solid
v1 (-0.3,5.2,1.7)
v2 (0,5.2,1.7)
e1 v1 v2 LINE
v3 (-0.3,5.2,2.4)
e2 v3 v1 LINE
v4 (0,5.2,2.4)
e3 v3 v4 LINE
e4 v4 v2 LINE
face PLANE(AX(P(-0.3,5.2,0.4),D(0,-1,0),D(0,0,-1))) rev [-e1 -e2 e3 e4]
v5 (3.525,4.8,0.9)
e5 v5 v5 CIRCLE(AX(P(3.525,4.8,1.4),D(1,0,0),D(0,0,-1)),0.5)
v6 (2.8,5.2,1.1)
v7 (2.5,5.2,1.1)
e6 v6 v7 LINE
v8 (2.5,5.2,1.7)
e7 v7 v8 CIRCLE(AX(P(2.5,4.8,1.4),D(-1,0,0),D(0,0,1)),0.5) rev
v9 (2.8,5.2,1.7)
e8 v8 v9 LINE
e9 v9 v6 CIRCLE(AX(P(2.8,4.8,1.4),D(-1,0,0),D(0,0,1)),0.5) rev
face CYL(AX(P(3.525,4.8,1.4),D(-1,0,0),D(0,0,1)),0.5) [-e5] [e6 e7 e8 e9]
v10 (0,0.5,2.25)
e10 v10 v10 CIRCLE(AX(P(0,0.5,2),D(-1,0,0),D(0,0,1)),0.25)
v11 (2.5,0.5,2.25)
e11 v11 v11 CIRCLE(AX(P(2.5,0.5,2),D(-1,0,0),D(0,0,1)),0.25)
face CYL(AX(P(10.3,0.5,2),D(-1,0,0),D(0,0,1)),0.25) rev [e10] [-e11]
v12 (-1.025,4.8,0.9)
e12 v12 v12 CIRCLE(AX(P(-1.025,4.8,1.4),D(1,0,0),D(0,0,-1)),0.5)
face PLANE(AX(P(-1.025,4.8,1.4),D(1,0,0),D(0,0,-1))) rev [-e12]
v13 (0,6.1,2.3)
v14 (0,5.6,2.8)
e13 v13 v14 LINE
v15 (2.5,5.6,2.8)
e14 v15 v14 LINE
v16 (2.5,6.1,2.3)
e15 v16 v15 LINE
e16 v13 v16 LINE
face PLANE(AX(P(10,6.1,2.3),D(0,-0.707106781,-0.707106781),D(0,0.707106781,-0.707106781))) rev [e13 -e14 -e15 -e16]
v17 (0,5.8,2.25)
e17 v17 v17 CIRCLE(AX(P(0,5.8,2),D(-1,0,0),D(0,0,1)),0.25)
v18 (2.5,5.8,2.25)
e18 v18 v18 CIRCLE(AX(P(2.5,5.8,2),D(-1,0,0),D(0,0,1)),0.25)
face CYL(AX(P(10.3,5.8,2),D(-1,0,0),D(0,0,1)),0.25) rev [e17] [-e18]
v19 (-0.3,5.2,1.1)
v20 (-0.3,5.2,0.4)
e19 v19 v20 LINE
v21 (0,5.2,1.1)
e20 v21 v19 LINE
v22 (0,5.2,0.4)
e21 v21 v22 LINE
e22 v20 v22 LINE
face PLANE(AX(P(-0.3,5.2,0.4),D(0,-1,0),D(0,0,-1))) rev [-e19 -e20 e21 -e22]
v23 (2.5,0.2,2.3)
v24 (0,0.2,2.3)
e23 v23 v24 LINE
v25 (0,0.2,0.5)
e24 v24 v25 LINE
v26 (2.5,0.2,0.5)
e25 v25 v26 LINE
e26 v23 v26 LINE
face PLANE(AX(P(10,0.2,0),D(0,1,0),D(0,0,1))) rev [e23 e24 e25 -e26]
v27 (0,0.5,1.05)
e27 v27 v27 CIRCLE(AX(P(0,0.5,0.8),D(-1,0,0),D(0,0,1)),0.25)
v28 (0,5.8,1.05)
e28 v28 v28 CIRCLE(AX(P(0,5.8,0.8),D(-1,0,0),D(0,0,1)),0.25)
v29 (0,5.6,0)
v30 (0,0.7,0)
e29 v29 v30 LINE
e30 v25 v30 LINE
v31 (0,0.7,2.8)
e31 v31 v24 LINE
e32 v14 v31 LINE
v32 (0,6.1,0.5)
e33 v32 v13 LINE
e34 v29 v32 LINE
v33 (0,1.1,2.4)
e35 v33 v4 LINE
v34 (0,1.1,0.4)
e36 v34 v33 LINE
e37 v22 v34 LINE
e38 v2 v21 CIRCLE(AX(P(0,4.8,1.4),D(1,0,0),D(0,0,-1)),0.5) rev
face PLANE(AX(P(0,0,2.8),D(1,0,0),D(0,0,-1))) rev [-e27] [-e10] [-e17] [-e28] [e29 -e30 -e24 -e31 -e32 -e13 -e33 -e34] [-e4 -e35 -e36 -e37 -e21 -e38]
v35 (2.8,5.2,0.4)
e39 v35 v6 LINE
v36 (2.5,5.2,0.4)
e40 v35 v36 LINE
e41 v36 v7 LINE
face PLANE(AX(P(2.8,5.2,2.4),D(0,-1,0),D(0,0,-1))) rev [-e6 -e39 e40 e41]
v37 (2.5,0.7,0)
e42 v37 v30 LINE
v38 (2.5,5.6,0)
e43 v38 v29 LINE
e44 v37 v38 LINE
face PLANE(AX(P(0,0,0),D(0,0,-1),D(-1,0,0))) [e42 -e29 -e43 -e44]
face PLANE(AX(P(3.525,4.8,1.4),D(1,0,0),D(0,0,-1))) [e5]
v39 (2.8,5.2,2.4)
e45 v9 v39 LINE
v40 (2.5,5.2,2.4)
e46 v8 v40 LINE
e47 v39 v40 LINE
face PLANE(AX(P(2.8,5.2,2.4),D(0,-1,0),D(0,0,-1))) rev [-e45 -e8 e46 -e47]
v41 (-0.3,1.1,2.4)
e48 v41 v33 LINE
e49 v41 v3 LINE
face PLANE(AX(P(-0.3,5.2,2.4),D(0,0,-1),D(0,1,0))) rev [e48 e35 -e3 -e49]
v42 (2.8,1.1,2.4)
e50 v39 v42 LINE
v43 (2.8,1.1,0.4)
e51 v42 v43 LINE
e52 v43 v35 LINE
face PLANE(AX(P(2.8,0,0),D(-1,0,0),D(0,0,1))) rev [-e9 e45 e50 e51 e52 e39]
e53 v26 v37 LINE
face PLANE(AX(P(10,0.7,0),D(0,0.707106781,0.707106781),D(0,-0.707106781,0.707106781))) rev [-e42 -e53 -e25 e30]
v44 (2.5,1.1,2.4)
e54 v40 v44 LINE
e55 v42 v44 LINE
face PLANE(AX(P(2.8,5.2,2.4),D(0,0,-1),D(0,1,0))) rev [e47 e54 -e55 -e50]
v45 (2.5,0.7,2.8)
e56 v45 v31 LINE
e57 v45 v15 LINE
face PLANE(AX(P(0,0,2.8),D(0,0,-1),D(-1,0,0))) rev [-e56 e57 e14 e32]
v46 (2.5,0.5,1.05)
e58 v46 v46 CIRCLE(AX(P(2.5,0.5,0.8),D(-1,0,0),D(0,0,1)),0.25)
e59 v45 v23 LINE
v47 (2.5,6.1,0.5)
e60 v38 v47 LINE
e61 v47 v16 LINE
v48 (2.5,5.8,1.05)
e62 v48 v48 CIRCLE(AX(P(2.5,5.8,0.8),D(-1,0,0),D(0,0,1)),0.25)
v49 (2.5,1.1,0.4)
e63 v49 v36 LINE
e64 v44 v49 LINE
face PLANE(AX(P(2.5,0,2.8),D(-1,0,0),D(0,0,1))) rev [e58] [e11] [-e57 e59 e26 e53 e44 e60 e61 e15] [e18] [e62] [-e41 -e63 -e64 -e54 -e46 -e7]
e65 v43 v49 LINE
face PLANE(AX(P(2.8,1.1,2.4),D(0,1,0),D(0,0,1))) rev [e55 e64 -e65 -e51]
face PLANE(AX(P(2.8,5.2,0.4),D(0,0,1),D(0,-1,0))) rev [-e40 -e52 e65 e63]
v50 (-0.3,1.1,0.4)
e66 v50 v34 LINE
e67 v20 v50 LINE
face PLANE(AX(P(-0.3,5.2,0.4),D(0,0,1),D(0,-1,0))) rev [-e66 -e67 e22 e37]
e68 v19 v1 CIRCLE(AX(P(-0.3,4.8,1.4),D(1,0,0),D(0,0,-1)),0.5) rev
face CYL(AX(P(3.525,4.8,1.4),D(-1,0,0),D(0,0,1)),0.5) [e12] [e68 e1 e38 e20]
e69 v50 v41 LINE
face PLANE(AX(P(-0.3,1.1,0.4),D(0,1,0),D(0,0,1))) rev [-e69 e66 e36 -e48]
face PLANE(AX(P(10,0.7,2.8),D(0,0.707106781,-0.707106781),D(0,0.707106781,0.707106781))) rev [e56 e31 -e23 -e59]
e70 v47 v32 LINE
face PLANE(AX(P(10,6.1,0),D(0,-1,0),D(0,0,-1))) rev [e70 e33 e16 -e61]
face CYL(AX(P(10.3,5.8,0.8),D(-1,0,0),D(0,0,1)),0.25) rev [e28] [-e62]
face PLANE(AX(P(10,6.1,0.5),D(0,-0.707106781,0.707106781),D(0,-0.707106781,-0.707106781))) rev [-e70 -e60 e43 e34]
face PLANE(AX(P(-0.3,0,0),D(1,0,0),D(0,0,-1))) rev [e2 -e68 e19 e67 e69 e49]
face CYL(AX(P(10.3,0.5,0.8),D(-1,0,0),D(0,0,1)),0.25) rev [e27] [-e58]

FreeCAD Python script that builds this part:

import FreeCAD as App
import Part
import Sketcher

V = App.Vector
Q = App.Units.Quantity


def edges_at(feature, points):
    """Names of the edges that pass closest to the given points."""
    edges = feature.Shape.Edges
    near = lambda p: min(range(len(edges)), key=lambda i: edges[i].distToShape(Part.Vertex(*p))[0])
    return sorted({f"Edge{near(p) + 1}" for p in points})

doc = App.newDocument("Part")
body = doc.addObject("PartDesign::Body", "Body")

# Sketch on XY plane
sketch1 = body.newObject("Sketcher::SketchObject", "Sketch")
sketch1.AttachmentSupport = (doc.getObject("XY_Plane"), [""])
sketch1.MapMode = "FlatFace"
sketch1.addGeometry([
    Part.LineSegment(V(0, 6.3, 0), V(0, 0, 0)),
    Part.LineSegment(V(0, 0, 0), V(2.5, 0, 0)),
    Part.LineSegment(V(2.5, 0, 0), V(2.5, 6.3, 0)),
    Part.LineSegment(V(2.5, 6.3, 0), V(0, 6.3, 0)),
], False)
sketch1.addConstraint([
    Sketcher.Constraint("Coincident", 0, 2, 1, 1),
    Sketcher.Constraint("Coincident", 1, 2, 2, 1),
    Sketcher.Constraint("Coincident", 2, 2, 3, 1),
    Sketcher.Constraint("Coincident", 3, 2, 0, 1),
    Sketcher.Constraint("Vertical", 0),
    Sketcher.Constraint("Horizontal", 1),
    Sketcher.Constraint("Vertical", 2),
    Sketcher.Constraint("Horizontal", 3),
    Sketcher.Constraint("Coincident", 0, 2, -1, 1),
    Sketcher.Constraint("DistanceX", 1, 1, 1, 2, Q("2.5 mm")),
    Sketcher.Constraint("DistanceY", 0, 2, 0, 1, Q("6.3 mm")),
])
pad1 = body.newObject("PartDesign::Pad", "Pad")
pad1.Profile = sketch1
pad1.Length = 2.8

# Sketch on YZ plane
sketch2 = body.newObject("Sketcher::SketchObject", "Sketch001")
sketch2.AttachmentSupport = (doc.getObject("YZ_Plane"), [""])
sketch2.MapMode = "FlatFace"
sketch2.AttachmentOffset = App.Placement(V(0, 0, 2.5), App.Rotation())
sketch2.addGeometry([
    Part.LineSegment(V(5.2, 2.4, 0), V(1.1, 2.4, 0)),
    Part.LineSegment(V(1.1, 2.4, 0), V(1.1, 0.4, 0)),
    Part.LineSegment(V(1.1, 0.4, 0), V(5.2, 0.4, 0)),
    Part.LineSegment(V(5.2, 0.4, 0), V(5.2, 2.4, 0)),
], False)
sketch2.addConstraint([
    Sketcher.Constraint("Coincident", 0, 2, 1, 1),
    Sketcher.Constraint("Coincident", 1, 2, 2, 1),
    Sketcher.Constraint("Coincident", 2, 2, 3, 1),
    Sketcher.Constraint("Coincident", 3, 2, 0, 1),
    Sketcher.Constraint("Horizontal", 0),
    Sketcher.Constraint("Vertical", 1),
    Sketcher.Constraint("Horizontal", 2),
    Sketcher.Constraint("Vertical", 3),
    Sketcher.Constraint("DistanceY", 1, 2, 1, 1, Q("2 mm")),
    Sketcher.Constraint("DistanceX", 0, 2, 0, 1, Q("4.1 mm")),
    Sketcher.Constraint("DistanceX", -1, 1, 0, 2, Q("1.1 mm")),
    Sketcher.Constraint("DistanceY", -1, 1, 0, 2, Q("2.4 mm")),
])
pad2 = body.newObject("PartDesign::Pad", "Pad001")
pad2.Profile = sketch2
pad2.Length = 0.3

# Sketch on YZ plane
sketch3 = body.newObject("Sketcher::SketchObject", "Sketch002")
sketch3.AttachmentSupport = (doc.getObject("YZ_Plane"), [""])
sketch3.MapMode = "FlatFace"
sketch3.addGeometry([
    Part.LineSegment(V(5.2, 0.4, 0), V(1.1, 0.4, 0)),
    Part.LineSegment(V(1.1, 0.4, 0), V(1.1, 2.4, 0)),
    Part.LineSegment(V(1.1, 2.4, 0), V(5.2, 2.4, 0)),
    Part.LineSegment(V(5.2, 2.4, 0), V(5.2, 0.4, 0)),
], False)
sketch3.addConstraint([
    Sketcher.Constraint("Coincident", 0, 2, 1, 1),
    Sketcher.Constraint("Coincident", 1, 2, 2, 1),
    Sketcher.Constraint("Coincident", 2, 2, 3, 1),
    Sketcher.Constraint("Coincident", 3, 2, 0, 1),
    Sketcher.Constraint("Horizontal", 0),
    Sketcher.Constraint("Vertical", 1),
    Sketcher.Constraint("Horizontal", 2),
    Sketcher.Constraint("Vertical", 3),
    Sketcher.Constraint("DistanceY", 1, 1, 1, 2, Q("2 mm")),
    Sketcher.Constraint("DistanceX", 0, 2, 0, 1, Q("4.1 mm")),
    Sketcher.Constraint("DistanceX", -1, 1, 0, 2, Q("1.1 mm")),
    Sketcher.Constraint("DistanceY", -1, 1, 0, 2, Q("0.4 mm")),
])
pad3 = body.newObject("PartDesign::Pad", "Pad002")
pad3.Profile = sketch3
pad3.Length = 0.3
pad3.Reversed = True

# Sketch on YZ plane
sketch4 = body.newObject("Sketcher::SketchObject", "Sketch003")
sketch4.AttachmentSupport = (doc.getObject("YZ_Plane"), [""])
sketch4.MapMode = "FlatFace"
sketch4.addGeometry([
    Part.Circle(V(0.5, 0.8, 0), V(0, 0, 1), 0.25),
    Part.Circle(V(0.5, 2, 0), V(0, 0, 1), 0.25),
    Part.Circle(V(5.8, 0.8, 0), V(0, 0, 1), 0.25),
    Part.Circle(V(5.8, 2, 0), V(0, 0, 1), 0.25),
], False)
sketch4.addConstraint([
    Sketcher.Constraint("Equal", 0, 1),
    Sketcher.Constraint("Equal", 1, 2),
    Sketcher.Constraint("Equal", 2, 3),
    Sketcher.Constraint("Horizontal", 0, 3, 2, 3),
    Sketcher.Constraint("Horizontal", 1, 3, 3, 3),
    Sketcher.Constraint("Vertical", 0, 3, 1, 3),
    Sketcher.Constraint("Vertical", 2, 3, 3, 3),
    Sketcher.Constraint("Diameter", 0, Q("0.5 mm")),
    Sketcher.Constraint("DistanceY", -1, 1, 1, 3, Q("2 mm")),
    Sketcher.Constraint("DistanceX", -1, 1, 0, 3, Q("0.5 mm")),
    Sketcher.Constraint("DistanceY", -1, 1, 0, 3, Q("0.8 mm")),
    Sketcher.Constraint("DistanceX", -1, 1, 2, 3, Q("5.8 mm")),
])
pocket1 = body.newObject("PartDesign::Pocket", "Pocket")
pocket1.Profile = sketch4
pocket1.Length = 10.3
pocket1.Reversed = True
doc.recompute()

fillet = body.newObject("PartDesign::Fillet", "Fillet")
fillet.Base = (pocket1, edges_at(pocket1, [
    (1.25, 6.3, 2.8),
    (1.25, 6.3, 0),
    (1.25, 0, 0),
    (1.25, 0, 2.8),
]))
fillet.Radius = 0.2

# Sketch on YZ plane
sketch5 = body.newObject("Sketcher::SketchObject", "Sketch004")
sketch5.AttachmentSupport = (doc.getObject("YZ_Plane"), [""])
sketch5.MapMode = "FlatFace"
sketch5.AttachmentOffset = App.Placement(V(0, 0, 1.25), App.Rotation())
sketch5.addGeometry(Part.Circle(V(4.8, 1.4, 0), V(0, 0, 1), 0.5), False)
sketch5.addConstraint([
    Sketcher.Constraint("Diameter", 0, Q("1 mm")),
    Sketcher.Constraint("DistanceX", -1, 1, 0, 3, Q("4.8 mm")),
    Sketcher.Constraint("DistanceY", -1, 1, 0, 3, Q("1.4 mm")),
])
pad4 = body.newObject("PartDesign::Pad", "Pad003")
pad4.Profile = sketch5
pad4.Length = 4.55
pad4.Midplane = True

# Sketch on YZ plane
sketch6 = body.newObject("Sketcher::SketchObject", "Sketch005")
sketch6.AttachmentSupport = (doc.getObject("YZ_Plane"), [""])
sketch6.MapMode = "FlatFace"
sketch6.addGeometry([
    Part.LineSegment(V(6.1, 0, 0), V(6.1, 2.8, 0)),  # 0
    Part.LineSegment(V(6.1, 2.8, 0), V(6.3, 2.8, 0)),  # 1
    Part.LineSegment(V(6.3, 2.8, 0), V(6.3, 0, 0)),  # 2
    Part.LineSegment(V(6.3, 0, 0), V(6.1, 0, 0)),  # 3
    Part.LineSegment(V(0.2, 2.8, 0), V(0.2, 0, 0)),  # 4
    Part.LineSegment(V(0.2, 0, 0), V(0, 0, 0)),  # 5
    Part.LineSegment(V(0, 0, 0), V(0, 2.8, 0)),  # 6
    Part.LineSegment(V(0, 2.8, 0), V(0.2, 2.8, 0)),  # 7
], False)
sketch6.addConstraint([
    Sketcher.Constraint("Coincident", 0, 2, 1, 1),
    Sketcher.Constraint("Coincident", 1, 2, 2, 1),
    Sketcher.Constraint("Coincident", 2, 2, 3, 1),
    Sketcher.Constraint("Coincident", 3, 2, 0, 1),
    Sketcher.Constraint("Coincident", 4, 2, 5, 1),
    Sketcher.Constraint("Coincident", 5, 2, 6, 1),
    Sketcher.Constraint("Coincident", 6, 2, 7, 1),
    Sketcher.Constraint("Coincident", 7, 2, 4, 1),
    Sketcher.Constraint("Vertical", 0),
    Sketcher.Constraint("Horizontal", 1),
    Sketcher.Constraint("Vertical", 2),
    Sketcher.Constraint("Horizontal", 3),
    Sketcher.Constraint("Vertical", 4),
    Sketcher.Constraint("Horizontal", 5),
    Sketcher.Constraint("Vertical", 6),
    Sketcher.Constraint("Horizontal", 7),
    Sketcher.Constraint("Coincident", 5, 2, -1, 1),
    Sketcher.Constraint("PointOnObject", 2, 2, -1),
    Sketcher.Constraint("Horizontal", 1, 2, 6, 2),
    Sketcher.Constraint("Equal", 3, 5),
    Sketcher.Constraint("DistanceX", 1, 1, 1, 2, Q("0.2 mm")),
    Sketcher.Constraint("DistanceY", 0, 1, 0, 2, Q("2.8 mm")),
    Sketcher.Constraint("DistanceX", -1, 1, 0, 2, Q("6.1 mm")),
])
pocket2 = body.newObject("PartDesign::Pocket", "Pocket001")
pocket2.Profile = sketch6
pocket2.Length = 10
pocket2.Reversed = True

# Sketch on YZ plane
sketch7 = body.newObject("Sketcher::SketchObject", "Sketch006")
sketch7.AttachmentSupport = (doc.getObject("YZ_Plane"), [""])
sketch7.MapMode = "FlatFace"
sketch7.addGeometry([
    Part.LineSegment(V(5.6, 2.8, 0), V(6.1, 2.8, 0)),  # 0
    Part.LineSegment(V(6.1, 2.8, 0), V(6.1, 2.3, 0)),  # 1
    Part.LineSegment(V(6.1, 2.3, 0), V(5.6, 2.8, 0)),  # 2
    Part.LineSegment(V(6.1, 0.5, 0), V(6.1, 0, 0)),  # 3
    Part.LineSegment(V(6.1, 0, 0), V(5.6, 0, 0)),  # 4
    Part.LineSegment(V(5.6, 0, 0), V(6.1, 0.5, 0)),  # 5
    Part.LineSegment(V(0.7, 0, 0), V(0.2, 0, 0)),  # 6
    Part.LineSegment(V(0.2, 0, 0), V(0.2, 0.5, 0)),  # 7
    Part.LineSegment(V(0.2, 0.5, 0), V(0.7, 0, 0)),  # 8
    Part.LineSegment(V(0.2, 2.8, 0), V(0.7, 2.8, 0)),  # 9
    Part.LineSegment(V(0.7, 2.8, 0), V(0.2, 2.3, 0)),  # 10
    Part.LineSegment(V(0.2, 2.3, 0), V(0.2, 2.8, 0)),  # 11
], False)
sketch7.addConstraint([
    Sketcher.Constraint("Coincident", 0, 2, 1, 1),
    Sketcher.Constraint("Coincident", 1, 2, 2, 1),
    Sketcher.Constraint("Coincident", 2, 2, 0, 1),
    Sketcher.Constraint("Coincident", 3, 2, 4, 1),
    Sketcher.Constraint("Coincident", 4, 2, 5, 1),
    Sketcher.Constraint("Coincident", 5, 2, 3, 1),
    Sketcher.Constraint("Coincident", 6, 2, 7, 1),
    Sketcher.Constraint("Coincident", 7, 2, 8, 1),
    Sketcher.Constraint("Coincident", 8, 2, 6, 1),
    Sketcher.Constraint("Coincident", 9, 2, 10, 1),
    Sketcher.Constraint("Coincident", 10, 2, 11, 1),
    Sketcher.Constraint("Coincident", 11, 2, 9, 1),
    Sketcher.Constraint("Horizontal", 0),
    Sketcher.Constraint("Vertical", 1),
    Sketcher.Constraint("Vertical", 3),
    Sketcher.Constraint("Horizontal", 4),
    Sketcher.Constraint("Horizontal", 6),
    Sketcher.Constraint("Vertical", 7),
    Sketcher.Constraint("Horizontal", 9),
    Sketcher.Constraint("Vertical", 11),
    Sketcher.Constraint("PointOnObject", 3, 2, -1),
    Sketcher.Constraint("PointOnObject", 6, 2, -1),
    Sketcher.Constraint("Perpendicular", 2, 5),
    Sketcher.Constraint("Perpendicular", 5, 8),
    Sketcher.Constraint("Perpendicular", 8, 10),
    Sketcher.Constraint("Horizontal", 5, 2, 7, 2),
    Sketcher.Constraint("Horizontal", 2, 2, 9, 2),
    Sketcher.Constraint("Horizontal", 1, 2, 10, 2),
    Sketcher.Constraint("Vertical", 1, 2, 3, 2),
    Sketcher.Constraint("Vertical", 2, 2, 4, 2),
    Sketcher.Constraint("Vertical", 8, 2, 9, 2),
    Sketcher.Constraint("Vertical", 7, 2, 10, 2),
    Sketcher.Constraint("DistanceX", 0, 1, 0, 2, Q("0.5 mm")),
    Sketcher.Constraint("DistanceX", -1, 1, 0, 2, Q("6.1 mm")),
    Sketcher.Constraint("DistanceY", -1, 1, 0, 2, Q("2.8 mm")),
    Sketcher.Constraint("DistanceX", -1, 1, 6, 2, Q("0.2 mm")),
])
pocket3 = body.newObject("PartDesign::Pocket", "Pocket002")
pocket3.Profile = sketch7
pocket3.Length = 10
pocket3.Reversed = True

doc.recompute()
